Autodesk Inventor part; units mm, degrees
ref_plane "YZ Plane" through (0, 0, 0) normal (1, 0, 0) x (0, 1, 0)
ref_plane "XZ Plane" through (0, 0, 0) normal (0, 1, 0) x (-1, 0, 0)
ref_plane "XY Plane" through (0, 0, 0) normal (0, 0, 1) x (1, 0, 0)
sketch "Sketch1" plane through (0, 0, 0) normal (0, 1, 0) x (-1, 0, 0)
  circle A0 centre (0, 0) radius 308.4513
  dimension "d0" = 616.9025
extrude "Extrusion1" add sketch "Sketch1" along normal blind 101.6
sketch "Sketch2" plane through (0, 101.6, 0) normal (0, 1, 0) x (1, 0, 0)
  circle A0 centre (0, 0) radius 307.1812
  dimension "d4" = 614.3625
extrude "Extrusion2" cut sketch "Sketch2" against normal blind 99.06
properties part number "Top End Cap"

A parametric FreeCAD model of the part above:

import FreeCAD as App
import Part
import Sketcher
Q = App.Units.Quantity

doc = App.newDocument("Part")
body = doc.addObject("PartDesign::Body", "Body")

# Sketch on XZ plane
sketch1 = body.newObject("Sketcher::SketchObject", "Sketch")
sketch1.AttachmentSupport = (doc.getObject("XZ_Plane"), [""])
sketch1.MapMode = "FlatFace"
sketch1.addGeometry(Part.Circle(App.Vector(0, 0, 0), App.Vector(0, 0, 1), 308.4513), False)
sketch1.addConstraint([
    Sketcher.Constraint("Coincident", 0, 3, -1, 1),
    Sketcher.Constraint("Diameter", 0, Q("24.2875 in")),
])
pad1 = body.newObject("PartDesign::Pad", "Pad")
pad1.Profile = sketch1
pad1.Length = Q("4 in")
pad1.Reversed = True

# Sketch on XZ plane
sketch2 = body.newObject("Sketcher::SketchObject", "Sketch001")
sketch2.AttachmentSupport = (doc.getObject("XZ_Plane"), [""])
sketch2.MapMode = "FlatFace"
sketch2.AttachmentOffset = App.Placement(App.Vector(0, 0, -4 * 25.4), App.Rotation())
sketch2.addGeometry(Part.Circle(App.Vector(0, 0, 0), App.Vector(0, 0, 1), 307.1812), False)
sketch2.addConstraint([
    Sketcher.Constraint("Coincident", 0, 3, -1, 1),
    Sketcher.Constraint("Diameter", 0, Q("24.1875 in")),
])
pocket1 = body.newObject("PartDesign::Pocket", "Pocket")
pocket1.Profile = sketch2
pocket1.Length = Q("3.9 in")
pocket1.Reversed = True

doc.recompute()
